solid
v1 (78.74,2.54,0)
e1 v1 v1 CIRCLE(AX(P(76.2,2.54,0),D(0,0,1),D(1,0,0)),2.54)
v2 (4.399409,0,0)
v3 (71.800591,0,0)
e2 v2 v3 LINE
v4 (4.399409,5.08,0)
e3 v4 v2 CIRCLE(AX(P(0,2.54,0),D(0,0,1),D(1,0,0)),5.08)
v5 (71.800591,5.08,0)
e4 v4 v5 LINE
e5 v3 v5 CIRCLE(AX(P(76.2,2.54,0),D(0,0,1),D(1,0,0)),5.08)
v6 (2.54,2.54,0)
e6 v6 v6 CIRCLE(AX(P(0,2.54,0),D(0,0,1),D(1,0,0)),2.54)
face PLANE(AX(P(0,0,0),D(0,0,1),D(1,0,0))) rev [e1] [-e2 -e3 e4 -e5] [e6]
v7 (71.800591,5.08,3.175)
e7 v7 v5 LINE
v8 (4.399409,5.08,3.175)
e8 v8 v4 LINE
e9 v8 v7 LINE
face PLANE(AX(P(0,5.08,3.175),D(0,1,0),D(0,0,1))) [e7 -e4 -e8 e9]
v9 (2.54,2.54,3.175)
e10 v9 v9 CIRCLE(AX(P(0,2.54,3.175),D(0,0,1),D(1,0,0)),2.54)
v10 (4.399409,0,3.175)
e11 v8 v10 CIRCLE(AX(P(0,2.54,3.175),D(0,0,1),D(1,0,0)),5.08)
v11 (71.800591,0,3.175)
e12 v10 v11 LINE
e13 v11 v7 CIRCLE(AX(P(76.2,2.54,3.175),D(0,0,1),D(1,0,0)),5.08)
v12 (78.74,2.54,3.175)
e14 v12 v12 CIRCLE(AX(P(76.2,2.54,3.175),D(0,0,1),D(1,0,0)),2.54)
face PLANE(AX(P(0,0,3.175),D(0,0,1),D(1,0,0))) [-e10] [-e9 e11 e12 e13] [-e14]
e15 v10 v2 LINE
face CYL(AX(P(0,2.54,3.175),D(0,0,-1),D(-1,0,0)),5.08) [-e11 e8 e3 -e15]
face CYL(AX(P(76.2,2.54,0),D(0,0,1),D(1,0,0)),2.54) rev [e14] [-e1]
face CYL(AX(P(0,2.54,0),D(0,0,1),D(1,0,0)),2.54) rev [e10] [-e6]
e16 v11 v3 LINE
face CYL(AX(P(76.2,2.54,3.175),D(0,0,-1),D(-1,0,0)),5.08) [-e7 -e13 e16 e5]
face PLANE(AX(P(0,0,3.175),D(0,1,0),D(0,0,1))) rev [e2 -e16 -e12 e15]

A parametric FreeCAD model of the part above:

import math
import FreeCAD as App
import Part
import Sketcher

V = App.Vector
Q = App.Units.Quantity

doc = App.newDocument("Part")
params = doc.addObject("Spreadsheet::Sheet", "Params")
for row, (alias, value) in enumerate([
    ("sketch1_radius", "0.2 in"),
    ("pad1_length", "0.125 in"),
    ("sketch2_diameter", "0.2 in"),
], start=1):
    params.set(f"A{row}", alias)
    params.set(f"B{row}", "=" + value)
    params.setAlias(f"B{row}", alias)

body = doc.addObject("PartDesign::Body", "Body")

sketch1 = body.newObject("Sketcher::SketchObject", "Sketch")
sketch1.AttachmentSupport = (doc.getObject("XY_Plane"), [""])
sketch1.MapMode = "FlatFace"
sketch1.addGeometry([
    Part.LineSegment(V(4, 0, 0), V(72, 0, 0)),
    Part.ArcOfCircle(Part.Circle(V(76, 3, 0), V(0, 0, 1), 5), math.radians(-150), math.radians(150)),
    Part.LineSegment(V(72, 5, 0), V(4, 5, 0)),
    Part.ArcOfCircle(Part.Circle(V(0, 3, 0), V(0, 0, 1), 5), math.radians(30), math.radians(330)),
], False)
sketch1.addConstraint([
    Sketcher.Constraint("Coincident", 0, 2, 1, 1),
    Sketcher.Constraint("Coincident", 1, 2, 2, 1),
    Sketcher.Constraint("Coincident", 2, 2, 3, 1),
    Sketcher.Constraint("Coincident", 3, 2, 0, 1),
    Sketcher.Constraint("Horizontal", 0),
    Sketcher.Constraint("Horizontal", 2),
    Sketcher.Constraint("Equal", 1, 3),
    Sketcher.Constraint("PointOnObject", 3, 3, -2),
    Sketcher.Constraint("PointOnObject", 0, 2, -1),
    Sketcher.Constraint("Horizontal", 1, 3, 3, 3),
    Sketcher.Constraint("Vertical", 0, 2, 1, 2),
    Sketcher.Constraint("Radius", 1, Q("0.2 in")),
    Sketcher.Constraint("DistanceX", -1, 1, 1, 3, Q("3 in")),
    Sketcher.Constraint("DistanceY", -1, 1, 1, 3, Q("0.1 in")),
])
sketch1.setExpression("Constraints[11]", "Params.sketch1_radius")
pad1 = body.newObject("PartDesign::Pad", "Pad")
pad1.Profile = sketch1
pad1.setExpression("Length", "Params.pad1_length")

sketch2 = body.newObject("Sketcher::SketchObject", "Sketch001")
sketch2.AttachmentSupport = (doc.getObject("XY_Plane"), [""])
sketch2.MapMode = "FlatFace"
sketch2.AttachmentOffset = App.Placement(V(0, 0, 0.125 * 25.4), App.Rotation())
sketch2.addGeometry([
    Part.Circle(V(0, 2.5, 0), V(0, 0, 1), 2.5),
    Part.Circle(V(76.2, 2.5, 0), V(0, 0, 1), 2.5),
], False)
sketch2.addConstraint([
    Sketcher.Constraint("Equal", 0, 1),
    Sketcher.Constraint("PointOnObject", 0, 3, -2),
    Sketcher.Constraint("Horizontal", 0, 3, 1, 3),
    Sketcher.Constraint("Diameter", 0, Q("0.2 in")),
    Sketcher.Constraint("DistanceX", -1, 1, 1, 3, Q("3 in")),
    Sketcher.Constraint("DistanceY", -1, 1, 0, 3, Q("0.1 in")),
])
sketch2.setExpression("Constraints[3]", "Params.sketch2_diameter")
pocket1 = body.newObject("PartDesign::Pocket", "Pocket")
pocket1.Profile = sketch2
pocket1.Type = "ThroughAll"

doc.recompute()
